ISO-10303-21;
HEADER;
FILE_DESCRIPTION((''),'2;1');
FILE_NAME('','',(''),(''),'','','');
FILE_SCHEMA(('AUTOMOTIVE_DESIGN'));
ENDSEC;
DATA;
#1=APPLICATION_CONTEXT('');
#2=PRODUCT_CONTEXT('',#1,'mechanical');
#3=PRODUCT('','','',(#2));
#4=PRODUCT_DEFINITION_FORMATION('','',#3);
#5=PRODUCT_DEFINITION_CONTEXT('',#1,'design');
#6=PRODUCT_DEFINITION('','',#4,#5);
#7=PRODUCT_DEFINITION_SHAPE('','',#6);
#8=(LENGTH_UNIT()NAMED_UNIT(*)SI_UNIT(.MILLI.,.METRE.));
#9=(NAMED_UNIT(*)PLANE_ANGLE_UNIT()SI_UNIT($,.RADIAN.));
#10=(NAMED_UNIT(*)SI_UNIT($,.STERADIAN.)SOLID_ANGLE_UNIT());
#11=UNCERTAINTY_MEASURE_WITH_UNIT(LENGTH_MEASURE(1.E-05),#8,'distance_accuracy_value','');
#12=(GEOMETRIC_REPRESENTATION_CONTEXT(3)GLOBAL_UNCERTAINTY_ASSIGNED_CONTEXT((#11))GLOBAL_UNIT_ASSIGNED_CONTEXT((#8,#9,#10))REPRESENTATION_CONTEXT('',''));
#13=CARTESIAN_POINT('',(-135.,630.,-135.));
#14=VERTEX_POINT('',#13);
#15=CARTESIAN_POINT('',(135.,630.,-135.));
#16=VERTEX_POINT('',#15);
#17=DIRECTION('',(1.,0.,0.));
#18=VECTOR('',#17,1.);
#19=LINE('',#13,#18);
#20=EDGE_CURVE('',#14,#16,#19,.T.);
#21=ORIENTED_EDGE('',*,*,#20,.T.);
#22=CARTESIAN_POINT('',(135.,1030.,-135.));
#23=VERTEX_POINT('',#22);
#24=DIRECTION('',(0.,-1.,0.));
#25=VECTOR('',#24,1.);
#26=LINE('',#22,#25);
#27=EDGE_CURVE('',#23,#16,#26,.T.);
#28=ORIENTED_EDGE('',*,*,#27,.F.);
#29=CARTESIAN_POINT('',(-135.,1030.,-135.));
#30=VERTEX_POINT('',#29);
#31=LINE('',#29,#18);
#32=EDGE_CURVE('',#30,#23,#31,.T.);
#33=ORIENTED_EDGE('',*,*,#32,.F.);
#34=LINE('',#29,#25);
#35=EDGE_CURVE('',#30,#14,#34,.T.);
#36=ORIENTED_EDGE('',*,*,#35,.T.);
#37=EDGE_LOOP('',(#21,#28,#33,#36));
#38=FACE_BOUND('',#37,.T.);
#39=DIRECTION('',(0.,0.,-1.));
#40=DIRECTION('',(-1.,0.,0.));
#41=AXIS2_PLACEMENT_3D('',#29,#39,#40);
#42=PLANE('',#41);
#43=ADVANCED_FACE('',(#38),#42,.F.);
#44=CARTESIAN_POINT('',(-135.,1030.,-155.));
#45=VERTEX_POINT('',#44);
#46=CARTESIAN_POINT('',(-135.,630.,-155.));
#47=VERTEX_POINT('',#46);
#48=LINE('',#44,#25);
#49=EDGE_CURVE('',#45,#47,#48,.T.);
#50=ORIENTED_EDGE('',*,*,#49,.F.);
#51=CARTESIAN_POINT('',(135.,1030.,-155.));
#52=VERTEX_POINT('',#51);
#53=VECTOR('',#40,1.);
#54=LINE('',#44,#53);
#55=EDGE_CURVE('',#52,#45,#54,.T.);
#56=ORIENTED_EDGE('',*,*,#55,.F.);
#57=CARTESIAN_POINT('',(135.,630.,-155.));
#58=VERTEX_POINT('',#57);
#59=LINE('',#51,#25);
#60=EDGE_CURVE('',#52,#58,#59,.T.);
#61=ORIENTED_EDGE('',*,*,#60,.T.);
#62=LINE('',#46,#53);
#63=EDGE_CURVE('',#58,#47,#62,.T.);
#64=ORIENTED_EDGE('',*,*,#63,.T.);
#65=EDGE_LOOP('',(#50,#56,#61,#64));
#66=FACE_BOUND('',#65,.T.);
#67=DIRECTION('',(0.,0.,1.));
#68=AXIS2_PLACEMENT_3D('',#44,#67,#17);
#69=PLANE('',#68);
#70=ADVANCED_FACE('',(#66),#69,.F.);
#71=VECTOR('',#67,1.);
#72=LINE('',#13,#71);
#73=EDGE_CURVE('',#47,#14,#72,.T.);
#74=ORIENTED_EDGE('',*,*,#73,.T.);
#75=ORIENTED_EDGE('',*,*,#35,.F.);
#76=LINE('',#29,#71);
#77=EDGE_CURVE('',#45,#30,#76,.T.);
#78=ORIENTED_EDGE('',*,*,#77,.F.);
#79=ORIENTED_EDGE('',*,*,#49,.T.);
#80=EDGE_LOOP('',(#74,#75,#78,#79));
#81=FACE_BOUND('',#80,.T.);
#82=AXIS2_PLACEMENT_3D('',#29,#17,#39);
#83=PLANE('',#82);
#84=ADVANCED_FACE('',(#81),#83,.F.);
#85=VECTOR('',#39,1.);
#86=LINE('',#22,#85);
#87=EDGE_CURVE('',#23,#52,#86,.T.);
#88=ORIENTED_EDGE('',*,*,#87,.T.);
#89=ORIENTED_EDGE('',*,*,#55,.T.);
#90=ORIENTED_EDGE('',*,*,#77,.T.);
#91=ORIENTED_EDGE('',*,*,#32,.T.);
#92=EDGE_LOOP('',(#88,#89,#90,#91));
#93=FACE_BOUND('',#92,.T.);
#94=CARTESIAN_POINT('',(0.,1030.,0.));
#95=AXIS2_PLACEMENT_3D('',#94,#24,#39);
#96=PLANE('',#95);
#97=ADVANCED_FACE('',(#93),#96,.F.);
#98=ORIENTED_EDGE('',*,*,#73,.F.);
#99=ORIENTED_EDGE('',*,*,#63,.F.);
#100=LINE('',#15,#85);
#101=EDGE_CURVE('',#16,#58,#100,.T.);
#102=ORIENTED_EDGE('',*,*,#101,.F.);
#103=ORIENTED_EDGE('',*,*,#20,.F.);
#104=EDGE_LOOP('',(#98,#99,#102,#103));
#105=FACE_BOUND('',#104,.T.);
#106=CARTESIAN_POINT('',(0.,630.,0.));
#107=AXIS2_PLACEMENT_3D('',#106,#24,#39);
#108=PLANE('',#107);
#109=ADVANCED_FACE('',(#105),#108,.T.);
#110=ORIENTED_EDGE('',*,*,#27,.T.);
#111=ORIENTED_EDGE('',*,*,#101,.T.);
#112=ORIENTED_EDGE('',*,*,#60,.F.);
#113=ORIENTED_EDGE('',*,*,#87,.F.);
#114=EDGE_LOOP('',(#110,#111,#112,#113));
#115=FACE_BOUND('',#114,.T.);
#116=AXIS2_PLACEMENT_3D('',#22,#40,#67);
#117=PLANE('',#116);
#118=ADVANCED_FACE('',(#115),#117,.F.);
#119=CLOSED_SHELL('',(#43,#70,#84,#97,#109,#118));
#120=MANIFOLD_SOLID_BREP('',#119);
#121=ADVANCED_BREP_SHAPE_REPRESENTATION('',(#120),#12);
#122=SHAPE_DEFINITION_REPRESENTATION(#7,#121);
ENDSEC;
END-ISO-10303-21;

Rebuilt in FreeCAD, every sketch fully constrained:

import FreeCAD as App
import Part
import Sketcher
from FreeCAD import Vector
Q = App.Units.Quantity


def add_polygon(sketch, points):
    """Adds a closed chain of lines whose ends are joined by coincident constraints."""
    first, n = sketch.GeometryCount, len(points)
    for a, b in zip(points, points[1:] + points[:1]):
        sketch.addGeometry(Part.LineSegment(App.Vector(*a, 0), App.Vector(*b, 0)), False)
    for i in range(n):
        sketch.addConstraint(Sketcher.Constraint("Coincident", first + i, 2, first + (i + 1) % n, 1))

doc = App.newDocument("Part")
body = doc.addObject("PartDesign::Body", "Body")

sketch1 = doc.addObject("Sketcher::SketchObject", "Sketch")
body.addObject(sketch1)
sketch1.AttachmentSupport = (doc.XZ_Plane, [""])
sketch1.MapMode = "FlatFace"
sketch1.AttachmentOffset = App.Placement(Vector(0, 0, -630), App.Rotation())
add_polygon(sketch1, [(-135, -155), (-135, -135), (135, -135), (135, -155)])
sketch1.addConstraint([
    Sketcher.Constraint("Vertical", 0),
    Sketcher.Constraint("Horizontal", 1),
    Sketcher.Constraint("Vertical", 2),
    Sketcher.Constraint("Horizontal", 3),
    Sketcher.Constraint("DistanceX", 1, 1, 1, 2, Q("270 mm")),
    Sketcher.Constraint("DistanceY", 0, 1, 0, 2, Q("20 mm")),
    Sketcher.Constraint("DistanceX", 0, 2, -1, 1, Q("135 mm")),
    Sketcher.Constraint("DistanceY", 0, 2, -1, 1, Q("135 mm")),
])
pad1 = doc.addObject("PartDesign::Pad", "Pad")
body.addObject(pad1)
pad1.Profile = sketch1
pad1.Length = 400
pad1.Reversed = True

doc.recompute()
